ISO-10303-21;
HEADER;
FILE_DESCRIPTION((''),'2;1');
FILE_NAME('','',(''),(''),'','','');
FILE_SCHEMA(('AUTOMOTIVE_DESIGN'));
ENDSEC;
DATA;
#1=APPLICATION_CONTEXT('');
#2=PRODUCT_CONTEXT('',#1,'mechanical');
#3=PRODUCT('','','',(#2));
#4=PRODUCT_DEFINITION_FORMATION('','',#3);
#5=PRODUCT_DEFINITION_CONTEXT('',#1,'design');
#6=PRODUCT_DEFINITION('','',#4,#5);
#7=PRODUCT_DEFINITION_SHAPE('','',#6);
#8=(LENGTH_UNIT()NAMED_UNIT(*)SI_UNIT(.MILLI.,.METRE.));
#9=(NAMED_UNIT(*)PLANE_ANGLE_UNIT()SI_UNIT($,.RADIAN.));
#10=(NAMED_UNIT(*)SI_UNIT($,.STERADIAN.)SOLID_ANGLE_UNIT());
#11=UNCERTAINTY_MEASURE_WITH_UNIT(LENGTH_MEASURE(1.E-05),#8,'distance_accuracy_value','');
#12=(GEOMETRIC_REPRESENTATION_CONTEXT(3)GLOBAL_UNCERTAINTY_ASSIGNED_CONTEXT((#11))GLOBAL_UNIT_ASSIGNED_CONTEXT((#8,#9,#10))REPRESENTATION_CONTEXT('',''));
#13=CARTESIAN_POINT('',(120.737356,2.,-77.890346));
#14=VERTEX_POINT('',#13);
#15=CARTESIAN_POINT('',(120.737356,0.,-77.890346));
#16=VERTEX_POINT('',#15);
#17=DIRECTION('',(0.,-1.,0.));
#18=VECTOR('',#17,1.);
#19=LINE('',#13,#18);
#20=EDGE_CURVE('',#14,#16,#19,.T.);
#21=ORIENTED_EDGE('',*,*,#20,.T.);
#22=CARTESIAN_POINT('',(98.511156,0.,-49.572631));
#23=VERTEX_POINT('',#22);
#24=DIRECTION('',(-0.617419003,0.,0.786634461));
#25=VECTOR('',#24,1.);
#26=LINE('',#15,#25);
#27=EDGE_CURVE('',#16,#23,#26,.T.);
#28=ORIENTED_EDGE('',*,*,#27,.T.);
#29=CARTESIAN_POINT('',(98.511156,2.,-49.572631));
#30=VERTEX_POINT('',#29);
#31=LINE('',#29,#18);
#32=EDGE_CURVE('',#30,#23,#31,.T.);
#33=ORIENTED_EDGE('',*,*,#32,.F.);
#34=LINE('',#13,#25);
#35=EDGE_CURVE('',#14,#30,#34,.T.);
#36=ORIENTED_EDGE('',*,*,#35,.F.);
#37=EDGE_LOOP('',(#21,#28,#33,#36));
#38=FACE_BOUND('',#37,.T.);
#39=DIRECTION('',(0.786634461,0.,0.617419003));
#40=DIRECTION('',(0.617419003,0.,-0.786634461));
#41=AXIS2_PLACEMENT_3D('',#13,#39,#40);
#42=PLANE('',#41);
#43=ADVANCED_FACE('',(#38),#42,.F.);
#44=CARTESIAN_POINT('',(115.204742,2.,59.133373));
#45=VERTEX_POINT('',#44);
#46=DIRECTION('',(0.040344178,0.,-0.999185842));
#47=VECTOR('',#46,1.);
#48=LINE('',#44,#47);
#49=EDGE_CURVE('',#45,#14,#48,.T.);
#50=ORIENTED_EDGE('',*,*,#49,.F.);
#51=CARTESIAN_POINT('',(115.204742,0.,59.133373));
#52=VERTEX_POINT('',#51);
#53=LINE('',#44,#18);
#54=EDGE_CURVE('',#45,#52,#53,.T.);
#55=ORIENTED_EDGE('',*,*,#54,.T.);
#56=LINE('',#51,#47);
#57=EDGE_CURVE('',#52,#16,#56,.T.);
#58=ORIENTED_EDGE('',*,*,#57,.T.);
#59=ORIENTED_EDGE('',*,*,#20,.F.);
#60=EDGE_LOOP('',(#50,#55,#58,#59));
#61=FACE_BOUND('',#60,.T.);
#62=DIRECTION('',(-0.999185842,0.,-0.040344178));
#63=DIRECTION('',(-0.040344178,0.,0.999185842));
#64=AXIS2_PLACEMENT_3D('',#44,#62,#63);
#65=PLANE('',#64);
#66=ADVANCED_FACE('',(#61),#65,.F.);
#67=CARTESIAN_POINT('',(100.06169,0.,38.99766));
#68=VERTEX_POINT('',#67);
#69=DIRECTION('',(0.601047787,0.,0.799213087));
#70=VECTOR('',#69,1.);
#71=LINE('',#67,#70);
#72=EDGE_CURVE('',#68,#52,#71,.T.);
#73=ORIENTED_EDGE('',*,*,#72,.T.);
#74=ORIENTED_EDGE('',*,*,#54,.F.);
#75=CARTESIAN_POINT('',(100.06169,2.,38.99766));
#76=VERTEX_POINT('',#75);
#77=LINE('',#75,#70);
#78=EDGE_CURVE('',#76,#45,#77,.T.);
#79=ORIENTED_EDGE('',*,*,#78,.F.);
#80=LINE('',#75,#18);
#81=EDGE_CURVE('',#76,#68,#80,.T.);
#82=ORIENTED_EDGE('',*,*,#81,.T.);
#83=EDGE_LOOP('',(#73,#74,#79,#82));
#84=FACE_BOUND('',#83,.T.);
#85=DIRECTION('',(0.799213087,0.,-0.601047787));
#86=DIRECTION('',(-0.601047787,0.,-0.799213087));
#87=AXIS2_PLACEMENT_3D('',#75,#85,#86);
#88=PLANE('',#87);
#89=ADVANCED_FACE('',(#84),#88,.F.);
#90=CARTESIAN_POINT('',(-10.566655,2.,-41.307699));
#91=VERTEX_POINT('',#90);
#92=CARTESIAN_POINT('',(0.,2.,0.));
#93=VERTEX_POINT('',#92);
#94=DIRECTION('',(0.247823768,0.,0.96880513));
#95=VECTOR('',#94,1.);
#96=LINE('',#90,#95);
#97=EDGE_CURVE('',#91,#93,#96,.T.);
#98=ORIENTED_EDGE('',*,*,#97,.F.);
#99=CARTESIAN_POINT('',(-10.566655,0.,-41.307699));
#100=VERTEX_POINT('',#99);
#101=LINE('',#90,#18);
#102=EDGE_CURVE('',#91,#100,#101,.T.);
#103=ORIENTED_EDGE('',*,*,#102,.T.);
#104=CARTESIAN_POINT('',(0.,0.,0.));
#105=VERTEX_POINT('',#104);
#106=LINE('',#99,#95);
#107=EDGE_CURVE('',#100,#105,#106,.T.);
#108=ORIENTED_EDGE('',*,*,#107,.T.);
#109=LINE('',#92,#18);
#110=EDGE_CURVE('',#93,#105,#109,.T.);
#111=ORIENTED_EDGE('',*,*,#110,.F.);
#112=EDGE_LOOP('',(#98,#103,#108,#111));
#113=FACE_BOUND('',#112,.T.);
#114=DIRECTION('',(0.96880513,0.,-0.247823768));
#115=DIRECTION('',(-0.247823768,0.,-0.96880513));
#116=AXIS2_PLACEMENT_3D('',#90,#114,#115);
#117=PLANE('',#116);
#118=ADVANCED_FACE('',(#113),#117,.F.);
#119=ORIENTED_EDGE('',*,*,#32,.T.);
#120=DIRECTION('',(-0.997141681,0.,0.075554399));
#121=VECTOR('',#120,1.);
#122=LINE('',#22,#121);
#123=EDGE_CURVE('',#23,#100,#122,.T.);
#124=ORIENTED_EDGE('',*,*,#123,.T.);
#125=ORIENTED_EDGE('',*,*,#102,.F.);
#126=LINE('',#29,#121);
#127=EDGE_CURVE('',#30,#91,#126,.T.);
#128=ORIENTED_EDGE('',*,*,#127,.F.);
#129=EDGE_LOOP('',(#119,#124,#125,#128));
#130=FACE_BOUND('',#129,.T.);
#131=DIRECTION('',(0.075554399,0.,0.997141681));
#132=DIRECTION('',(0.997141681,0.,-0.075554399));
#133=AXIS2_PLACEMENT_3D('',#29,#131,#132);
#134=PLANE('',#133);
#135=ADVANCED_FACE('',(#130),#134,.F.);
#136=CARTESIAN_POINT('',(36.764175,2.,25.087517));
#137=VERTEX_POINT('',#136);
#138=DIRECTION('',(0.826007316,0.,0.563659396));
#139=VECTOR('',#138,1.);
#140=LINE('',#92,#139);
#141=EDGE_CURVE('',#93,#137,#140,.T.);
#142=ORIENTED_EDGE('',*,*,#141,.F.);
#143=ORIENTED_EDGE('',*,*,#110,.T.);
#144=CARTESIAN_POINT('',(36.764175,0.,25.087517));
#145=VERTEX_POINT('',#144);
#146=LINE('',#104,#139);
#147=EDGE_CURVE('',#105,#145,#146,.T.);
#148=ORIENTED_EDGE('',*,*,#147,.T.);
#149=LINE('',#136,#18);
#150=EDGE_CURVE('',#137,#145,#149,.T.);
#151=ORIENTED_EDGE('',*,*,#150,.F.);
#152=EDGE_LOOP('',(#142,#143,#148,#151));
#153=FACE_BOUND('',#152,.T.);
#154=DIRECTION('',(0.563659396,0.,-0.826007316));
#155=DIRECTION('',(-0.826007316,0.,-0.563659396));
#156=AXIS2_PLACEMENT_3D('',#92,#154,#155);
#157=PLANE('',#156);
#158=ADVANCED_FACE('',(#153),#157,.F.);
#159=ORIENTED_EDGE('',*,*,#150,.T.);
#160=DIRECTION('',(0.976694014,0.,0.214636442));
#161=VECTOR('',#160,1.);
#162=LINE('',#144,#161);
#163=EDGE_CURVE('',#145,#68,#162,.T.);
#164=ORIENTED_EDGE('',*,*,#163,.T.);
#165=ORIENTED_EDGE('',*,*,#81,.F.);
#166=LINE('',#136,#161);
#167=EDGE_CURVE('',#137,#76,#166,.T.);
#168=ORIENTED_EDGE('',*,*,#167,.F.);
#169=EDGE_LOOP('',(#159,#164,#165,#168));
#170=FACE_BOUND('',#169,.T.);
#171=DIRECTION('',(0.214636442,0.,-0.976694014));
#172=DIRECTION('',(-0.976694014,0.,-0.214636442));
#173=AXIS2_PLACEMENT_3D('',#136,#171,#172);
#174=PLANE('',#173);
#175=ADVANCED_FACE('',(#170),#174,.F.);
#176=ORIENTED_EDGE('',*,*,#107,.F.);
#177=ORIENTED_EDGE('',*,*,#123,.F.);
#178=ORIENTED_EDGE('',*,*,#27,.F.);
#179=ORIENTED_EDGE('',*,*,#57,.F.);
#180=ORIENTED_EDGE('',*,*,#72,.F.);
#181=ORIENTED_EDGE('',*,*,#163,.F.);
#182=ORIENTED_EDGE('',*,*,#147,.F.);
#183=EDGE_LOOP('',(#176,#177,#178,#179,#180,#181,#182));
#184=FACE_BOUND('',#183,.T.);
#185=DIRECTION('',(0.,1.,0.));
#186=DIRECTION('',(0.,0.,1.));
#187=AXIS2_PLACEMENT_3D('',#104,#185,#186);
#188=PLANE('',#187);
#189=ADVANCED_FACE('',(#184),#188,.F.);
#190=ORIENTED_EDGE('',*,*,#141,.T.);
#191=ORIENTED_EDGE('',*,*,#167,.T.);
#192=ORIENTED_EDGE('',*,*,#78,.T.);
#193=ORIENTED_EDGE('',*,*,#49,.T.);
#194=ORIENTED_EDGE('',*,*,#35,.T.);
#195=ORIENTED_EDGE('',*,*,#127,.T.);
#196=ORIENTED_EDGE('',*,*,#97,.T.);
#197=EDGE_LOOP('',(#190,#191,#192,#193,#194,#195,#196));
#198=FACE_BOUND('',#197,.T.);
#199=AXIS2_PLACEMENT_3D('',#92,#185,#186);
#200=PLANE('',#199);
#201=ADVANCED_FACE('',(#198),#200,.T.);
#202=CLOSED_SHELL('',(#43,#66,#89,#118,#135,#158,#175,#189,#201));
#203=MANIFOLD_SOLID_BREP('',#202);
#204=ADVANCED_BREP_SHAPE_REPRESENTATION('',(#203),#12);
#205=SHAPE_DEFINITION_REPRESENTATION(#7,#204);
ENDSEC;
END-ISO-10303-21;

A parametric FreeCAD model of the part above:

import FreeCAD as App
import Part
import Sketcher
from FreeCAD import Vector
Q = App.Units.Quantity


def add_polygon(sketch, points):
    """Adds a closed chain of lines whose ends are joined by coincident constraints."""
    first, n = sketch.GeometryCount, len(points)
    for a, b in zip(points, points[1:] + points[:1]):
        sketch.addGeometry(Part.LineSegment(App.Vector(*a, 0), App.Vector(*b, 0)), False)
    for i in range(n):
        sketch.addConstraint(Sketcher.Constraint("Coincident", first + i, 2, first + (i + 1) % n, 1))

doc = App.newDocument("Part")
params = doc.addObject("Spreadsheet::Sheet", "Params")
for row, (alias, value) in enumerate([
    ("pad1_length", "2 mm"),
], start=1):
    params.set(f"A{row}", alias)
    params.set(f"B{row}", "=" + value)
    params.setAlias(f"B{row}", alias)

body = doc.addObject("PartDesign::Body", "Body")

sketch1 = body.newObject("Sketcher::SketchObject", "Sketch")
sketch1.AttachmentSupport = (doc.getObject("XZ_Plane"), [""])
sketch1.MapMode = "FlatFace"
add_polygon(sketch1, [(121, -78), (99, -50), (-11, -41), (0, 0), (37, 25), (100, 39), (115, 59)])
sketch1.addConstraint(Sketcher.Constraint("Coincident", 2, 2, -1, 1))
sketch1.addConstraint(Sketcher.Constraint("DistanceY", 1, 2, -1, 1, Q("41.307699 mm")))
sketch1.addConstraint(Sketcher.Constraint("DistanceX", 0, 2, 6, 2, Q("22.2262 mm")))
sketch1.addConstraint(Sketcher.Constraint("Distance", 0, Q("35.998569 mm")))
sketch1.addConstraint(Sketcher.Constraint("Distance", 2, Q("42.637779 mm")))
sketch1.addConstraint(Sketcher.Constraint("Distance", 3, Q("44.508292 mm")))
sketch1.addConstraint(Sketcher.Constraint("Distance", 4, Q("64.807928 mm")))
sketch1.addConstraint(Sketcher.Constraint("Distance", 6, Q("137.135369 mm")))
sketch1.addConstraint(Sketcher.Constraint("DistanceY", 0, 2, -1, 1, Q("49.572631 mm")))
sketch1.addConstraint(Sketcher.Constraint("DistanceX", -1, 1, 4, 2, Q("100.06169 mm")))
sketch1.addConstraint(Sketcher.Constraint("DistanceY", -1, 1, 4, 2, Q("38.99766 mm")))
sketch1.addConstraint(Sketcher.Constraint("DistanceX", 1, 2, 0, 2, Q("109.077811 mm")))
sketch1.addConstraint(Sketcher.Constraint("DistanceY", 1, 2, 5, 2, Q("100.441072 mm")))
pad1 = body.newObject("PartDesign::Pad", "Pad")
pad1.Profile = sketch1
pad1.setExpression("Length", "Params.pad1_length")
pad1.Reversed = True

doc.recompute()
